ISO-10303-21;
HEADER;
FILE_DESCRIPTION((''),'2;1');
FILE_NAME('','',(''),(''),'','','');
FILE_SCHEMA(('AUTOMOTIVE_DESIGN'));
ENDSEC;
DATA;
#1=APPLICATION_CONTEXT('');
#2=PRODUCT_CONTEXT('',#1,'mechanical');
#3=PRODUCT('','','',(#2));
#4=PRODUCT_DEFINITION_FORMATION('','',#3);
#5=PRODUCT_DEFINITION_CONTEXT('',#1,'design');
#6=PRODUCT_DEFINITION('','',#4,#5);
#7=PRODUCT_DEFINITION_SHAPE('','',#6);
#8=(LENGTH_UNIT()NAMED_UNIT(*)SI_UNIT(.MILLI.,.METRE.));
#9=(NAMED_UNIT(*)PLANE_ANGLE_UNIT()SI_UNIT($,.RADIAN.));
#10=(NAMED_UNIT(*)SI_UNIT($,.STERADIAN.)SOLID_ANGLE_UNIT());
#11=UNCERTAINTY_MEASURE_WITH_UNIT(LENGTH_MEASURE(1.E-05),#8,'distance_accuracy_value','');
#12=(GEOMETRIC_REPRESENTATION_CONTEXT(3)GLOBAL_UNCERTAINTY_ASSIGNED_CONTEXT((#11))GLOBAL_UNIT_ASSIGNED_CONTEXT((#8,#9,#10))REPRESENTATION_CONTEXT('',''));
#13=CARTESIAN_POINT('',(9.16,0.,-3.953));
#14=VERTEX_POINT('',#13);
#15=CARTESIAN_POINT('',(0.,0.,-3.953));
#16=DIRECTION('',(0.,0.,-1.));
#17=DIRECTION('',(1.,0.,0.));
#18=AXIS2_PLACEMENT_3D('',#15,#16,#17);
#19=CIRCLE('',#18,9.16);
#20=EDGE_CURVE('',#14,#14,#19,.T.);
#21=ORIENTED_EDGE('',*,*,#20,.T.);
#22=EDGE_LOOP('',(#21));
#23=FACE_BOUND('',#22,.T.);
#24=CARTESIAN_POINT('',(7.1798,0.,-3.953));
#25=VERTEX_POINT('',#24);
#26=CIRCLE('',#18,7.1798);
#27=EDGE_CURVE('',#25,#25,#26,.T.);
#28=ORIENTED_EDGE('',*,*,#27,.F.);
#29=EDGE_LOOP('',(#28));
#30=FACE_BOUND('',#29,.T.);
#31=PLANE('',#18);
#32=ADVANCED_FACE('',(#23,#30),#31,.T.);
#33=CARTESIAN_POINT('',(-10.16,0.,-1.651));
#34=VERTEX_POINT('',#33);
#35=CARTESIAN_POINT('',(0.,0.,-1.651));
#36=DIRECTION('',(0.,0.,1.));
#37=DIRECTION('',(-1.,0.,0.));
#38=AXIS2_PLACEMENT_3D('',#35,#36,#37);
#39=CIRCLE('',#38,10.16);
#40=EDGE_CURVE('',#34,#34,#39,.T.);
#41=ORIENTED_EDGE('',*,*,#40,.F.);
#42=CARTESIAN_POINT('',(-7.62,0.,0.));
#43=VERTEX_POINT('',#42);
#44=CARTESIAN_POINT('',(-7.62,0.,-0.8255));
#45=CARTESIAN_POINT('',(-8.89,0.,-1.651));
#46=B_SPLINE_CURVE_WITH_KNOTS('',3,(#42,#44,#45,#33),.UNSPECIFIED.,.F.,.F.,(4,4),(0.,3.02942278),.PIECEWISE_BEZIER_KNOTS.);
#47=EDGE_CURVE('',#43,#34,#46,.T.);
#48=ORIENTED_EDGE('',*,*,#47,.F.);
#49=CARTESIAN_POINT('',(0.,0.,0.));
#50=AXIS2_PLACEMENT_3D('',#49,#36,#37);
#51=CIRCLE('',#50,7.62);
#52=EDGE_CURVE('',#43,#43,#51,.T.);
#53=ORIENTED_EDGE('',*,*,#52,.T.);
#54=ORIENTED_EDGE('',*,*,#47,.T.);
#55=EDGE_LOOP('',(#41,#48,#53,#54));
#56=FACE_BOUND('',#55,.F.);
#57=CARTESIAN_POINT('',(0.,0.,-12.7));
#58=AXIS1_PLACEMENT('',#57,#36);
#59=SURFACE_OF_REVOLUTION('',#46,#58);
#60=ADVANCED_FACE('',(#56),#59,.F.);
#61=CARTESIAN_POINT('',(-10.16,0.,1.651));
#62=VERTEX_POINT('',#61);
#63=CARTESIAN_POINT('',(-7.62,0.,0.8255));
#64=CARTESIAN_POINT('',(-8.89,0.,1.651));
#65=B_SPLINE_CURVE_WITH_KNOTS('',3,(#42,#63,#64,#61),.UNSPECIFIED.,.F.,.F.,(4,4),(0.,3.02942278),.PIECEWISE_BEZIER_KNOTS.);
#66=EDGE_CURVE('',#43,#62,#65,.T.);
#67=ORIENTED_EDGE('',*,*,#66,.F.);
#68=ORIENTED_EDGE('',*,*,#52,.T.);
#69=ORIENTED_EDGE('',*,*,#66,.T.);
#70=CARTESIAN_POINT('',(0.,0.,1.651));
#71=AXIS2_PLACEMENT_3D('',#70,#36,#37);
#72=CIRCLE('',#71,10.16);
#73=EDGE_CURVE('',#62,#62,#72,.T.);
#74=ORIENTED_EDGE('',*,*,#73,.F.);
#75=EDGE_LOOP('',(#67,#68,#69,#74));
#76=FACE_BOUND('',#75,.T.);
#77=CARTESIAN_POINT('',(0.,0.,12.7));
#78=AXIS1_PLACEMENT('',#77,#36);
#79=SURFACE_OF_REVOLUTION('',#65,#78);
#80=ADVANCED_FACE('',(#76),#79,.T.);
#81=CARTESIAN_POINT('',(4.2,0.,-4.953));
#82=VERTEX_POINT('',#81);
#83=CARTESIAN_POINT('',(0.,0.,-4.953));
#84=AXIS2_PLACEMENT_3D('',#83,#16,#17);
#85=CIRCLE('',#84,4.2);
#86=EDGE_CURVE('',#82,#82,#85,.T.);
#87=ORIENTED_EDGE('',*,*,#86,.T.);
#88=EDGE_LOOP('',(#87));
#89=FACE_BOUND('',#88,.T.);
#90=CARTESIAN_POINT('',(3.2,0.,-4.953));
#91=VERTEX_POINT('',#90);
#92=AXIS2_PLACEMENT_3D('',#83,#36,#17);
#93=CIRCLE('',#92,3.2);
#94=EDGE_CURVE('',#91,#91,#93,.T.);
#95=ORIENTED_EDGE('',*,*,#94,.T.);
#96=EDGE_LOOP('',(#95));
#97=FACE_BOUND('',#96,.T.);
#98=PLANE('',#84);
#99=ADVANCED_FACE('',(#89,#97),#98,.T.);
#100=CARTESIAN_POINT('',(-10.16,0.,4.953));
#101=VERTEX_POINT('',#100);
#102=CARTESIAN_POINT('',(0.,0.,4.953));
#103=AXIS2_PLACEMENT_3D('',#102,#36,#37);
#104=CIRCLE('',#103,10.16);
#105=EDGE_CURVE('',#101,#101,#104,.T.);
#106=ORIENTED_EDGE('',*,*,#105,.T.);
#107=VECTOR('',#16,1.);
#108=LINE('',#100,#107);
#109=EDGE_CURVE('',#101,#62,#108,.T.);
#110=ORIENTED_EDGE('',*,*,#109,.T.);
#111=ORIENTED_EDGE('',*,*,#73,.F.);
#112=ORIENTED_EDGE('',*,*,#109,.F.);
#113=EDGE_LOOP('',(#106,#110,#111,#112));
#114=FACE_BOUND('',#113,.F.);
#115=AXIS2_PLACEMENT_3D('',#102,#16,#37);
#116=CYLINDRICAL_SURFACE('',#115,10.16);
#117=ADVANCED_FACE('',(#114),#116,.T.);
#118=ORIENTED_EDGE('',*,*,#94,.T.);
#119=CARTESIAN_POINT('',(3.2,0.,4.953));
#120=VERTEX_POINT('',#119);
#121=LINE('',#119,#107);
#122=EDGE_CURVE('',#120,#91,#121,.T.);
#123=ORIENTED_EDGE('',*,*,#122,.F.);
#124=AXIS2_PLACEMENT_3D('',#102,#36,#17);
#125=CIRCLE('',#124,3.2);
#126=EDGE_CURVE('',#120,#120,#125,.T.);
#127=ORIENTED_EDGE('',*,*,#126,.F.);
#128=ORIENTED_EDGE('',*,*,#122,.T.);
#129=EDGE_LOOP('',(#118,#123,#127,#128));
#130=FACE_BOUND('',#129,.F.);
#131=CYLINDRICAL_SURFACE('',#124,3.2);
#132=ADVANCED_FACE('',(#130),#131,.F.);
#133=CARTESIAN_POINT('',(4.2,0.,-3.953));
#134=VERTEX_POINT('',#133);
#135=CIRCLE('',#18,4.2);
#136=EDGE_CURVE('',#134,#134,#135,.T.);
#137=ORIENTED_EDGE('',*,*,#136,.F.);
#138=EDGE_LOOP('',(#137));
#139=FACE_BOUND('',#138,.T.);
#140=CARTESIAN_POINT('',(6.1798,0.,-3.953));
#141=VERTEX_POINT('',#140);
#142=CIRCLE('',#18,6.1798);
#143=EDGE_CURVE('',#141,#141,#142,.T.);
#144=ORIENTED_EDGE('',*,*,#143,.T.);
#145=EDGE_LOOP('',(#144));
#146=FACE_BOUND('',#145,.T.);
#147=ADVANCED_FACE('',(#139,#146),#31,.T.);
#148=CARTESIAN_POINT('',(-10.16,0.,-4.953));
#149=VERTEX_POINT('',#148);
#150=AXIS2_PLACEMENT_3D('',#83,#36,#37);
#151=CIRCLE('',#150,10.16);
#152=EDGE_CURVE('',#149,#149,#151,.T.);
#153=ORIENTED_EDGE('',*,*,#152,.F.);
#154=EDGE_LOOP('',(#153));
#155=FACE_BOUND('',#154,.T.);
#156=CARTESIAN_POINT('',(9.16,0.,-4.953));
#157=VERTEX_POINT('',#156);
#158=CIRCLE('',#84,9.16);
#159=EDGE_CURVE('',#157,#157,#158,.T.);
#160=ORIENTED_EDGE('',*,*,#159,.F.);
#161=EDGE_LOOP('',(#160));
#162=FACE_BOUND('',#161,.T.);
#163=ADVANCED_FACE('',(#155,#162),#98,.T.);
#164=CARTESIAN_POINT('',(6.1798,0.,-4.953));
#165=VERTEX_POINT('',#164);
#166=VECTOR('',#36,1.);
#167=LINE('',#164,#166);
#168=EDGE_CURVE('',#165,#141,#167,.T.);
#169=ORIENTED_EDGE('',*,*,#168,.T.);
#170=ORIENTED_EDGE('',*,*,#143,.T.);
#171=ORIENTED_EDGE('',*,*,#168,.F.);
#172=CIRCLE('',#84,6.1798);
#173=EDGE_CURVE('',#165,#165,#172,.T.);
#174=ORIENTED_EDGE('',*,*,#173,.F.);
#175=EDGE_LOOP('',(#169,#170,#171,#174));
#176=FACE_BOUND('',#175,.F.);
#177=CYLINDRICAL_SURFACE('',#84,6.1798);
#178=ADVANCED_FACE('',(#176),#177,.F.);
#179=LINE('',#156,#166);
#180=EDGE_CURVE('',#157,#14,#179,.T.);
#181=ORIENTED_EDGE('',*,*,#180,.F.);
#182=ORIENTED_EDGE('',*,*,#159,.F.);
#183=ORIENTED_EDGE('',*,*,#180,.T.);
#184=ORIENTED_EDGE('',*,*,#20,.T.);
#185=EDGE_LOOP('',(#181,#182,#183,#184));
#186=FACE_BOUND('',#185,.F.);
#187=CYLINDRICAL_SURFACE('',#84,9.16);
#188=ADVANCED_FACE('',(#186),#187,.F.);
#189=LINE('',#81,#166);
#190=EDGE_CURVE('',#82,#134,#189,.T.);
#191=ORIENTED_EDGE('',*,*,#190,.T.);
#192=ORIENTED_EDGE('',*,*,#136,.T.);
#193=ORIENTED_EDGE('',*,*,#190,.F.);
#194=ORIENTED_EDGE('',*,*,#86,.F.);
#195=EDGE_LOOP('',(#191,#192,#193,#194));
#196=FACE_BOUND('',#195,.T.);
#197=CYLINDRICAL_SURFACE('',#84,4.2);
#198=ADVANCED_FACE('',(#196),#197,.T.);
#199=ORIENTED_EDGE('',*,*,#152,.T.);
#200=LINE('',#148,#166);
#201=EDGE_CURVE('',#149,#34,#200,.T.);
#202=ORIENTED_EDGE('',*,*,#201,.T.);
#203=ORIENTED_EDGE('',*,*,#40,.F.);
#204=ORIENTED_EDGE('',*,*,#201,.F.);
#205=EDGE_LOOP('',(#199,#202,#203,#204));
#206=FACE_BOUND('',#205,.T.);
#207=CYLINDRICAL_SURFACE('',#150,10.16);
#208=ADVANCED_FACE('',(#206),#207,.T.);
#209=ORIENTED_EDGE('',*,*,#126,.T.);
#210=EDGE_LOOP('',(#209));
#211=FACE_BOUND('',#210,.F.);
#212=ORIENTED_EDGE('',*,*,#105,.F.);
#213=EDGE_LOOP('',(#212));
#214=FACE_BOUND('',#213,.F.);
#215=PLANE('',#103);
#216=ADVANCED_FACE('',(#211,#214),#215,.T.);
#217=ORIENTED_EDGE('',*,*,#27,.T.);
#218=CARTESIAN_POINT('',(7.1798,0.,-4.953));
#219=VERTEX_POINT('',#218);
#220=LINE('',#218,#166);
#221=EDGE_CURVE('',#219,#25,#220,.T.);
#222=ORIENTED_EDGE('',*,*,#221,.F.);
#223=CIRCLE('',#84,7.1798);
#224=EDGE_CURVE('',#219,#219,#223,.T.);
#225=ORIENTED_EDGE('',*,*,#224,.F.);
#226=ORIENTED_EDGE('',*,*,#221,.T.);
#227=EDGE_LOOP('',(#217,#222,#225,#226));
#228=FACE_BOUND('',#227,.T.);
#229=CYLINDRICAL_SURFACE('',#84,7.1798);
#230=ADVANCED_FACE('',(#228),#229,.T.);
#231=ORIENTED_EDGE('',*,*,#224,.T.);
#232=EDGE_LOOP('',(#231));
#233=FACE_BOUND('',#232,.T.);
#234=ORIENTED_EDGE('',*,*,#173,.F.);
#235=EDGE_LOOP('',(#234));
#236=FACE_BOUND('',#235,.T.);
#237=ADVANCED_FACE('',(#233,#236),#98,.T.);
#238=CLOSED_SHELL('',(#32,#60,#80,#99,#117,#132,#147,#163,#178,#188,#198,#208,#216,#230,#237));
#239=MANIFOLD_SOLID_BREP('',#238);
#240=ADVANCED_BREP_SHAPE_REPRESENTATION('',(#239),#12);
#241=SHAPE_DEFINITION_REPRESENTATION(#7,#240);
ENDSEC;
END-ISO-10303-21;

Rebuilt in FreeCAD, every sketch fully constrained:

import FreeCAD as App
import Part
import Sketcher
Q = App.Units.Quantity

doc = App.newDocument("Part")
body = doc.addObject("PartDesign::Body", "Body")

sketch1 = body.newObject("Sketcher::SketchObject", "Sketch")
sketch1.AttachmentSupport = (doc.getObject("XZ_Plane"), [""])
sketch1.MapMode = "FlatFace"
sketch1.addGeometry(Part.LineSegment(App.Vector(0, 0, 0), App.Vector(0, 4.953, 0)), False)
sketch1.addGeometry(Part.LineSegment(App.Vector(0, 4.953, 0), App.Vector(-10.16, 4.953, 0)), False)
sketch1.addGeometry(Part.LineSegment(App.Vector(-10.16, 4.953, 0), App.Vector(-10.16, 1.651, 0)), False)
sketch1.addGeometry(Part.BSplineCurve([App.Vector(-7.62, 0, 0), App.Vector(-7.62, 0.8255, 0), App.Vector(-8.89, 1.651, 0), App.Vector(-10.16, 1.651, 0)], [4, 4], [0, 3.02942278], False, 3, [1, 1, 1, 1], False), False)
sketch1.addGeometry(Part.LineSegment(App.Vector(-7.62, 0, 0), App.Vector(0, 0, 0)), False)
sketch1.addConstraint(Sketcher.Constraint("Block", 3))
sketch1.addConstraint(Sketcher.Constraint("Coincident", 0, 2, 1, 1))
sketch1.addConstraint(Sketcher.Constraint("Coincident", 1, 2, 2, 1))
sketch1.addConstraint(Sketcher.Constraint("Coincident", 2, 2, 3, 2))
sketch1.addConstraint(Sketcher.Constraint("Coincident", 3, 1, 4, 1))
sketch1.addConstraint(Sketcher.Constraint("Coincident", 4, 2, 0, 1))
sketch1.addConstraint(Sketcher.Constraint("Vertical", 0))
sketch1.addConstraint(Sketcher.Constraint("Horizontal", 1))
sketch1.addConstraint(Sketcher.Constraint("Vertical", 2))
sketch1.addConstraint(Sketcher.Constraint("Horizontal", 4))
sketch1.addConstraint(Sketcher.Constraint("PointOnObject", 0, 2, -2))
sketch1.addConstraint(Sketcher.Constraint("DistanceY", 2, 2, 2, 1, Q("0.13 in")))
revolution = body.newObject("PartDesign::Revolution", "Revolution")
revolution.Profile = sketch1
revolution.ReferenceAxis = (sketch1, ["V_Axis"])
revolution.Angle = 360
body2 = doc.addObject("PartDesign::Body", "Body001")
doc.recompute()

body2.BaseFeature = body
doc.recompute()

mirroring = doc.addObject("Part::Mirroring", "Mirroring")
mirroring.Source = body
mirroring.Base = App.Vector(0, 0, 0)
mirroring.Normal = App.Vector(0, 0, 1)
body3 = doc.addObject("PartDesign::Body", "Body002")
body3.BaseFeature = mirroring
boolean = body2.newObject("PartDesign::Boolean", "Boolean")
boolean.Type = "Fuse"
boolean.addObjects([body3])
doc.recompute()

sketch2 = body2.newObject("Sketcher::SketchObject", "Sketch001")
sketch2.AttachmentSupport = (doc.getObject("XY_Plane001"), [""])
sketch2.MapMode = "FlatFace"
sketch2.AttachmentOffset = App.Placement(App.Vector(0, 0, 0.195 * 25.4), App.Rotation())
sketch2.addGeometry(Part.Circle(App.Vector(0, 0, 0), App.Vector(0, 0, 1), 3.2), False)
sketch2.addConstraint(Sketcher.Constraint("Coincident", 0, 3, -1, 1))
sketch2.addConstraint(Sketcher.Constraint("Diameter", 0, Q("6.4 mm")))
pocket1 = body2.newObject("PartDesign::Pocket", "Pocket")
pocket1.Profile = sketch2
pocket1.Type = "ThroughAll"

sketch3 = body2.newObject("Sketcher::SketchObject", "Sketch002")
sketch3.AttachmentSupport = (doc.getObject("XY_Plane001"), [""])
sketch3.MapMode = "FlatFace"
sketch3.AttachmentOffset = App.Placement(App.Vector(0, 0, -0.195 * 25.4), App.Rotation())
sketch3.addGeometry(Part.Circle(App.Vector(0, 0, 0), App.Vector(0, 0, 1), 9.2), False)
sketch3.addGeometry(Part.Circle(App.Vector(0, 0, 0), App.Vector(0, 0, 1), 7.2), False)
sketch3.addGeometry(Part.Circle(App.Vector(0, 0, 0), App.Vector(0, 0, 1), 6.2), False)
sketch3.addGeometry(Part.Circle(App.Vector(0, 0, 0), App.Vector(0, 0, 1), 4.2), False)
sketch3.addConstraint(Sketcher.Constraint("Coincident", 0, 3, -1, 1))
sketch3.addConstraint(Sketcher.Constraint("Coincident", 1, 3, -1, 1))
sketch3.addConstraint(Sketcher.Constraint("Coincident", 2, 3, -1, 1))
sketch3.addConstraint(Sketcher.Constraint("Coincident", 3, 3, -1, 1))
sketch3.addConstraint(Sketcher.Constraint("Diameter", 0, Q("18.32 mm")))
sketch3.addConstraint(Sketcher.Constraint("Diameter", 1, Q("14.3596 mm")))
sketch3.addConstraint(Sketcher.Constraint("Diameter", 2, Q("12.3596 mm")))
sketch3.addConstraint(Sketcher.Constraint("Diameter", 3, Q("8.4 mm")))
pocket2 = body2.newObject("PartDesign::Pocket", "Pocket001")
pocket2.Profile = sketch3
pocket2.Length = 1
pocket2.Reversed = True
mirroring.Visibility = False

doc.recompute()
